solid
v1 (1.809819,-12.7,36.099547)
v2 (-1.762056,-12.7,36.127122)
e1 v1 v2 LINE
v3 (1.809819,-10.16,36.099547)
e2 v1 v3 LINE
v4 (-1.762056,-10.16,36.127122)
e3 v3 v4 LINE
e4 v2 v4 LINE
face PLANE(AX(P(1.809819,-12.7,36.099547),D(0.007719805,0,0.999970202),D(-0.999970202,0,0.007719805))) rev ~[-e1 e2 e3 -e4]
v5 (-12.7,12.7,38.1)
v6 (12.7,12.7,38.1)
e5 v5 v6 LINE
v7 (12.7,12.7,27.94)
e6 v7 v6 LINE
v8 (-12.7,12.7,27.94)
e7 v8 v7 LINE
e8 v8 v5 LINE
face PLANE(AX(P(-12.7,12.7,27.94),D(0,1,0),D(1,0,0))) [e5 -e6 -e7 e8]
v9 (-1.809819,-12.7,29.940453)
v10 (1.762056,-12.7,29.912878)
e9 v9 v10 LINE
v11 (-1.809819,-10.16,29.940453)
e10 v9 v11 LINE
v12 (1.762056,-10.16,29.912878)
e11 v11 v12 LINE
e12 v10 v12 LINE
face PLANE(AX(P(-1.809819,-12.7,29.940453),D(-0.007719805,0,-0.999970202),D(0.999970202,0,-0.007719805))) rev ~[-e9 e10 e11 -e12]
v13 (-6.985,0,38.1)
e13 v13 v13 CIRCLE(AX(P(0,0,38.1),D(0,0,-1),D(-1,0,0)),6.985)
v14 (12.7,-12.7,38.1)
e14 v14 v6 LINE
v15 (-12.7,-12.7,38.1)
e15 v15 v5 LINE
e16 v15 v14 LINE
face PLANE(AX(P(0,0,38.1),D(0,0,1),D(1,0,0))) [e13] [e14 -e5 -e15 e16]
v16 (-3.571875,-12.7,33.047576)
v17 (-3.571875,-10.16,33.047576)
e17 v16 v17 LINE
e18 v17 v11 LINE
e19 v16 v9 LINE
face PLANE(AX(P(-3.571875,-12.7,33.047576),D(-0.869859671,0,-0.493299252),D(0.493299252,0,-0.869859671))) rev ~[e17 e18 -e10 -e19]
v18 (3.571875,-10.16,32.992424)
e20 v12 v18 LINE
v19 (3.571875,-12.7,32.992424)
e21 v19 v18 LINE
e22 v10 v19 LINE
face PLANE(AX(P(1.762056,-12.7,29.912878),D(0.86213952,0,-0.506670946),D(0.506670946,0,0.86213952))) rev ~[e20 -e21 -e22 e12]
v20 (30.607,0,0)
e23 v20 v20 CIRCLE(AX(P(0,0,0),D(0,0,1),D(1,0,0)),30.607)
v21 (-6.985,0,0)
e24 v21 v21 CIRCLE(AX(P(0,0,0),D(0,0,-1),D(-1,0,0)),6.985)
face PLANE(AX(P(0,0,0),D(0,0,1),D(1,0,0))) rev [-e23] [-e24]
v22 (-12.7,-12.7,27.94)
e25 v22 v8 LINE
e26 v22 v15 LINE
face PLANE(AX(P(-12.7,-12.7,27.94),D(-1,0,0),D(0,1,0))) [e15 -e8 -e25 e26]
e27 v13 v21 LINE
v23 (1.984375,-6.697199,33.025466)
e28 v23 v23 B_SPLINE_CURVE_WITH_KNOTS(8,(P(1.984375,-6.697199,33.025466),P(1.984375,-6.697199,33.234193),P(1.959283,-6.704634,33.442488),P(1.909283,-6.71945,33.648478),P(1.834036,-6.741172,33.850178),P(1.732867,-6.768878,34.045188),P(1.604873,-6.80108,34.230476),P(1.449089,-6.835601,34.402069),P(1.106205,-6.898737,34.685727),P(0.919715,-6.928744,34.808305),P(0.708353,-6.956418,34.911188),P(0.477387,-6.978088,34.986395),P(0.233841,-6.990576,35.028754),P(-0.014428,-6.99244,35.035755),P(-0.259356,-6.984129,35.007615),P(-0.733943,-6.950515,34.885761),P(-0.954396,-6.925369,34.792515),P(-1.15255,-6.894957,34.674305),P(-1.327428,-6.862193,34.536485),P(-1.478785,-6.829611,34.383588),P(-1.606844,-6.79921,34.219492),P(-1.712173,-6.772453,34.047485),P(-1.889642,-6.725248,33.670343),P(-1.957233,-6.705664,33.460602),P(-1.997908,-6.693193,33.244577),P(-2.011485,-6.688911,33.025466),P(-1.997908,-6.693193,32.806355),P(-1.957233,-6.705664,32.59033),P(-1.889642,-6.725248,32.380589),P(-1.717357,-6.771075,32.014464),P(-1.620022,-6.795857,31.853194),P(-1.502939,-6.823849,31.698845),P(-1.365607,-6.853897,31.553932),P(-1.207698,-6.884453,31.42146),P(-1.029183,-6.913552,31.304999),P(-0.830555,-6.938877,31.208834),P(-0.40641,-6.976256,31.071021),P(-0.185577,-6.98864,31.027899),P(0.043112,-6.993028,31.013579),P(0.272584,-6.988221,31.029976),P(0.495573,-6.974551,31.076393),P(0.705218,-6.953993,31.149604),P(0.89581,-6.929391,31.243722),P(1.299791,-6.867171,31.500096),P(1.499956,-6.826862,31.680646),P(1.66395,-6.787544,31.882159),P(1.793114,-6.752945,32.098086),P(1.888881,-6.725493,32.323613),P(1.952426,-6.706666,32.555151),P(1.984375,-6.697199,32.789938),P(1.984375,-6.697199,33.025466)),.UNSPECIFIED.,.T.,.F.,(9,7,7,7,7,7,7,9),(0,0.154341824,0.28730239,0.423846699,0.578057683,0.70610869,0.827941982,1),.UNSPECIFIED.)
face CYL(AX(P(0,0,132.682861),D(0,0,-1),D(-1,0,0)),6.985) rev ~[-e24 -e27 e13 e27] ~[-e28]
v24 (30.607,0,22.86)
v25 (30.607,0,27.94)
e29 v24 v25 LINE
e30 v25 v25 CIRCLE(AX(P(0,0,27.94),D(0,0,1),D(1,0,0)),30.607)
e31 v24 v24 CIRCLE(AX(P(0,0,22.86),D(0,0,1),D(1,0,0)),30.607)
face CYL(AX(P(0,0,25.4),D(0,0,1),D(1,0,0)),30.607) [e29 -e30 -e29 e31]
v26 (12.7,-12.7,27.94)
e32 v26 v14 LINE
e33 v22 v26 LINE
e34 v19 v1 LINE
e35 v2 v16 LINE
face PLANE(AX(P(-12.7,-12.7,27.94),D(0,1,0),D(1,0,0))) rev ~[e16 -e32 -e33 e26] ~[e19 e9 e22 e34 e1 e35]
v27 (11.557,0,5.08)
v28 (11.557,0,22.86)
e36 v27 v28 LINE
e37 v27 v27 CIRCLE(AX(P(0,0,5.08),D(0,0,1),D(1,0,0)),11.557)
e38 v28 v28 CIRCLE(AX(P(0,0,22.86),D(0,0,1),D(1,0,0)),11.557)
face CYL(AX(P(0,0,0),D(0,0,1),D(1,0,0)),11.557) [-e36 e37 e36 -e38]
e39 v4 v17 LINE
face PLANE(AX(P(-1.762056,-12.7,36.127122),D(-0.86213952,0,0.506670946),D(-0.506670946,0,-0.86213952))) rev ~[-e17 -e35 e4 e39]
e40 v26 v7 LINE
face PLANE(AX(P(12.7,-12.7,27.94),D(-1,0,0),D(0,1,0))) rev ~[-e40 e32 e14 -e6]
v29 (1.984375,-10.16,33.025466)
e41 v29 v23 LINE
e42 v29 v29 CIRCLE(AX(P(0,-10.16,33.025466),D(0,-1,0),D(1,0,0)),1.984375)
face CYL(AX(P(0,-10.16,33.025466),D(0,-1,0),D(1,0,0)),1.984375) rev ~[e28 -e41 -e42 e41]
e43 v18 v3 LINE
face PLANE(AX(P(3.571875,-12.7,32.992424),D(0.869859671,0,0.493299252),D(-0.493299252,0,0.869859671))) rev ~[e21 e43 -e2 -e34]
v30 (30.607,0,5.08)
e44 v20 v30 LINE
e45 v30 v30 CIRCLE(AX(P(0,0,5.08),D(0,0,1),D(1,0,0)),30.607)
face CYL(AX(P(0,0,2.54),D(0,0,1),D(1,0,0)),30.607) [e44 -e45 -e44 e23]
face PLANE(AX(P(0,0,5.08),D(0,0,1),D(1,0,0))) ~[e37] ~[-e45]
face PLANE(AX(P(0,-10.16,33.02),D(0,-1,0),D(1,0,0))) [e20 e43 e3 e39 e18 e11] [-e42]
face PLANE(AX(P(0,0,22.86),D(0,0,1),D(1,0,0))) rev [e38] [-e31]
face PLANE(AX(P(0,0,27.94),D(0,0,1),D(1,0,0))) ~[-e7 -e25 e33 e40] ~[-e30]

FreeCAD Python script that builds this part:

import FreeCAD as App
import Part
import Sketcher
Q = App.Units.Quantity


def add_polygon(sketch, points):
    """Adds a closed chain of lines whose ends are joined by coincident constraints."""
    first, n = sketch.GeometryCount, len(points)
    for a, b in zip(points, points[1:] + points[:1]):
        sketch.addGeometry(Part.LineSegment(App.Vector(*a, 0), App.Vector(*b, 0)), False)
    for i in range(n):
        sketch.addConstraint(Sketcher.Constraint("Coincident", first + i, 2, first + (i + 1) % n, 1))

doc = App.newDocument("Part")
body = doc.addObject("PartDesign::Body", "Body")

sketch1 = doc.addObject("Sketcher::SketchObject", "Sketch")
body.addObject(sketch1)
sketch1.AttachmentSupport = (doc.XZ_Plane, [""])
sketch1.MapMode = "FlatFace"
add_polygon(sketch1, [(0, 38), (0, 0), (31, 0), (31, 5), (12, 5), (12, 23), (31, 23), (31, 28), (12, 28), (12, 38)])
sketch1.addConstraint([
    Sketcher.Constraint("Vertical", 0),
    Sketcher.Constraint("Horizontal", 1),
    Sketcher.Constraint("Vertical", 2),
    Sketcher.Constraint("Horizontal", 3),
    Sketcher.Constraint("Vertical", 4),
    Sketcher.Constraint("Horizontal", 5),
    Sketcher.Constraint("Vertical", 6),
    Sketcher.Constraint("Horizontal", 7),
    Sketcher.Constraint("Vertical", 8),
    Sketcher.Constraint("Horizontal", 9),
    Sketcher.Constraint("Coincident", 0, 2, -1, 1),
    Sketcher.Constraint("Vertical", 2, 2, 5, 2),
    Sketcher.Constraint("Vertical", 4, 2, 7, 2),
    Sketcher.Constraint("Equal", 2, 6),
    Sketcher.Constraint("DistanceY", 0, 2, 0, 1, Q("1.5 in")),
    Sketcher.Constraint("DistanceY", 2, 1, 2, 2, Q("0.2 in")),
    Sketcher.Constraint("DistanceY", 4, 1, 4, 2, Q("0.7 in")),
    Sketcher.Constraint("DistanceX", 3, 2, 3, 1, Q("0.75 in")),
    Sketcher.Constraint("DistanceX", 1, 1, 1, 2, Q("1.205 in")),
])
revolution = doc.addObject("PartDesign::Revolution", "Revolution")
body.addObject(revolution)
revolution.Profile = sketch1
revolution.ReferenceAxis = (sketch1, ["V_Axis"])
revolution.Angle = 360

sketch2 = doc.addObject("Sketcher::SketchObject", "Sketch001")
body.addObject(sketch2)
sketch2.AttachmentSupport = (doc.XY_Plane, [""])
sketch2.MapMode = "FlatFace"
sketch2.AttachmentOffset = App.Placement(App.Vector(0, 0, 1.5 * 25.4), App.Rotation())
sketch2.addGeometry(Part.Circle(App.Vector(0, 0, 0), App.Vector(0, 0, 1), 7), False)
sketch2.addConstraint([
    Sketcher.Constraint("Coincident", 0, 3, -1, 1),
    Sketcher.Constraint("Diameter", 0, Q("0.55 in")),
])
doc.recompute()
hole = doc.addObject("PartDesign::Hole", "Hole")
body.addObject(hole)
hole.Profile = sketch2
hole.ThreadType = "None"
hole.Diameter = Q("0.55 in")
hole.DepthType = "ThroughAll"

sketch3 = doc.addObject("Sketcher::SketchObject", "Sketch002")
body.addObject(sketch3)
sketch3.AttachmentSupport = (doc.XY_Plane, [""])
sketch3.MapMode = "FlatFace"
sketch3.AttachmentOffset = App.Placement(App.Vector(0, 0, 1.1 * 25.4), App.Rotation())
add_polygon(sketch3, [(-13, 13), (-13, -13), (13, -13), (13, 13)])
sketch3.addGeometry(Part.Circle(App.Vector(0, 0, 0), App.Vector(0, 0, 1), 12), False)
sketch3.addConstraint([
    Sketcher.Constraint("Vertical", 0),
    Sketcher.Constraint("Horizontal", 1),
    Sketcher.Constraint("Vertical", 2),
    Sketcher.Constraint("Horizontal", 3),
    Sketcher.Constraint("Coincident", 4, 3, -1, 1),
    Sketcher.Constraint("Symmetric", 0, 2, 2, 2, -1, 1),
    Sketcher.Constraint("Equal", 3, 0),
    Sketcher.Constraint("Diameter", 4, Q("0.91 in")),
    Sketcher.Constraint("DistanceX", 1, 1, 1, 2, Q("1 in")),
])
pad1 = doc.addObject("PartDesign::Pad", "Pad")
body.addObject(pad1)
pad1.Profile = sketch3
pad1.Length = Q("0.4 in")

sketch4 = doc.addObject("Sketcher::SketchObject", "Sketch003")
body.addObject(sketch4)
sketch4.AttachmentSupport = (doc.XZ_Plane, [""])
sketch4.MapMode = "FlatFace"
sketch4.AttachmentOffset = App.Placement(App.Vector(0, 0, 0.5 * 25.4), App.Rotation())
add_polygon(sketch4, [(-1.8, 29.9), (1.8, 29.9), (3.6, 33), (1.8, 36.1), (-1.8, 36.1), (-3.6, 33)])
sketch4.addConstraint([
    Sketcher.Constraint("Parallel", 0, 3),
    Sketcher.Constraint("Parallel", 1, 4),
    Sketcher.Constraint("Parallel", 2, 5),
    Sketcher.Constraint("Equal", 0, 1),
    Sketcher.Constraint("Equal", 1, 2),
    Sketcher.Constraint("Equal", 2, 3),
    Sketcher.Constraint("DistanceX", -1, 1, 1, 2, Q("0.140625 in")),
    Sketcher.Constraint("DistanceX", 4, 2, -1, 1, Q("0.140625 in")),
    Sketcher.Constraint("DistanceX", 3, 2, 2, 2, Q("0.140625 in")),
    Sketcher.Constraint("DistanceY", 1, 2, 3, 2, Q("3.134698 mm")),
    Sketcher.Constraint("DistanceX", -1, 1, 2, 2, Q("1.809819 mm")),
    Sketcher.Constraint("DistanceY", -1, 1, 0, 2, Q("29.912878 mm")),
])
pocket1 = doc.addObject("PartDesign::Pocket", "Pocket")
body.addObject(pocket1)
pocket1.Profile = sketch4
pocket1.Length = Q("0.1 in")

sketch5 = doc.addObject("Sketcher::SketchObject", "Sketch004")
body.addObject(sketch5)
sketch5.AttachmentSupport = (doc.XZ_Plane, [""])
sketch5.MapMode = "FlatFace"
sketch5.AttachmentOffset = App.Placement(App.Vector(0, 0, 0.4 * 25.4), App.Rotation())
sketch5.addGeometry(Part.Circle(App.Vector(0, 33, 0), App.Vector(0, 0, 1), 2), False)
sketch5.addConstraint([
    Sketcher.Constraint("PointOnObject", 0, 3, -2),
    Sketcher.Constraint("Diameter", 0, Q("0.15625 in")),
    Sketcher.Constraint("DistanceY", -1, 1, 0, 3, Q("33.025466 mm")),
])
pocket2 = doc.addObject("PartDesign::Pocket", "Pocket001")
body.addObject(pocket2)
pocket2.Profile = sketch5
pocket2.Length = Q("0.2 in")

doc.recompute()
